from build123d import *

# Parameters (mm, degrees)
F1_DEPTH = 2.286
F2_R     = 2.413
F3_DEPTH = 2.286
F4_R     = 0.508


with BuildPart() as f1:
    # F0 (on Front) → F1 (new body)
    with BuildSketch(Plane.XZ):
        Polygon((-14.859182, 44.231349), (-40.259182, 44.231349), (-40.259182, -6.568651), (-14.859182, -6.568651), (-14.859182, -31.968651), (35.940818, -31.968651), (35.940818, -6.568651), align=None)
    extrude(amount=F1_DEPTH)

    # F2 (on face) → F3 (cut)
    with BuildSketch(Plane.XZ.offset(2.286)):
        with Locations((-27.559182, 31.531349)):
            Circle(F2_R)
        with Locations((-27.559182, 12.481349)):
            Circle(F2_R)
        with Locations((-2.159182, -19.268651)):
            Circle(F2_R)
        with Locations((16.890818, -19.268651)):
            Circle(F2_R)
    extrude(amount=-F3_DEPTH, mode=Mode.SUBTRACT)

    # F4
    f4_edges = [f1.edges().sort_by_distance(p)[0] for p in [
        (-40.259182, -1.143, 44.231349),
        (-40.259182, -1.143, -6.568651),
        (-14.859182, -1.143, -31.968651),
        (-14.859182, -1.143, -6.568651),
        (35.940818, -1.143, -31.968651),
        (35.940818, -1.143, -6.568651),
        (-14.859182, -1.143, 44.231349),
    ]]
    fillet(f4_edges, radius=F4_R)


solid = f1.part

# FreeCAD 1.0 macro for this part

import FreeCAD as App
import Part
import Sketcher
Q = App.Units.Quantity


def edges_at(feature, points):
    """Names of the edges that pass closest to the given points."""
    edges = feature.Shape.Edges
    near = lambda p: min(range(len(edges)), key=lambda i: edges[i].distToShape(Part.Vertex(*p))[0])
    return sorted({f"Edge{near(p) + 1}" for p in points})


def add_polygon(sketch, points):
    """Adds a closed chain of lines whose ends are joined by coincident constraints."""
    first, n = sketch.GeometryCount, len(points)
    for a, b in zip(points, points[1:] + points[:1]):
        sketch.addGeometry(Part.LineSegment(App.Vector(*a, 0), App.Vector(*b, 0)), False)
    for i in range(n):
        sketch.addConstraint(Sketcher.Constraint("Coincident", first + i, 2, first + (i + 1) % n, 1))

doc = App.newDocument("Part")
params = doc.addObject("Spreadsheet::Sheet", "Params")
for row, (alias, value) in enumerate([
    ("sketch1_width", "1 in"),
    ("sketch1_width2", "2 in"),
    ("pad1_length", "0.09 in"),
    ("sketch2_diameter", "0.19 in"),
    ("pocket1_length", "0.09 in"),
    ("fillet_radius", "0.02 in"),
], start=1):
    params.set(f"A{row}", alias)
    params.set(f"B{row}", "=" + value)
    params.setAlias(f"B{row}", alias)

body = doc.addObject("PartDesign::Body", "Body")

# Sketch on XZ plane
sketch1 = body.newObject("Sketcher::SketchObject", "Sketch")
sketch1.AttachmentSupport = (doc.getObject("XZ_Plane"), [""])
sketch1.MapMode = "FlatFace"
add_polygon(sketch1, [(-15, 44), (-40, 44), (-40, -7), (-15, -7), (-15, -32), (36, -32), (36, -7)])  # lines 0-6
sketch1.addConstraint(Sketcher.Constraint("Horizontal", 0))
sketch1.addConstraint(Sketcher.Constraint("Vertical", 1))
sketch1.addConstraint(Sketcher.Constraint("Horizontal", 2))
sketch1.addConstraint(Sketcher.Constraint("Vertical", 3))
sketch1.addConstraint(Sketcher.Constraint("Horizontal", 4))
sketch1.addConstraint(Sketcher.Constraint("Vertical", 5))
sketch1.addConstraint(Sketcher.Constraint("Horizontal", 2, 2, 5, 2))
sketch1.addConstraint(Sketcher.Constraint("Vertical", 3, 2, 6, 2))
sketch1.addConstraint(Sketcher.Constraint("Equal", 4, 1))
sketch1.addConstraint(Sketcher.Constraint("Equal", 2, 3))
sketch1.addConstraint(Sketcher.Constraint("DistanceX", 0, 2, 0, 1, Q("1 in")))
sketch1.addConstraint(Sketcher.Constraint("DistanceX", 4, 1, 4, 2, Q("2 in")))
sketch1.addConstraint(Sketcher.Constraint("DistanceY", -1, 1, 0, 2, 44.231349))
sketch1.addConstraint(Sketcher.Constraint("DistanceX", 0, 2, -1, 1, 40.259182))
sketch1.setExpression("Constraints[17]", "Params.sketch1_width")
sketch1.setExpression("Constraints[18]", "Params.sketch1_width2")
pad1 = body.newObject("PartDesign::Pad", "Pad")
pad1.Profile = sketch1
pad1.setExpression("Length", "Params.pad1_length")

# Sketch on XZ plane
sketch2 = body.newObject("Sketcher::SketchObject", "Sketch001")
sketch2.AttachmentSupport = (doc.getObject("XZ_Plane"), [""])
sketch2.MapMode = "FlatFace"
sketch2.AttachmentOffset = App.Placement(App.Vector(0, 0, 0.09 * 25.4), App.Rotation())
sketch2.addGeometry(Part.Circle(App.Vector(-27.6, 31.5, 0), App.Vector(0, 0, 1), 2.4), False)
sketch2.addGeometry(Part.Circle(App.Vector(-27.6, 12.5, 0), App.Vector(0, 0, 1), 2.4), False)
sketch2.addGeometry(Part.Circle(App.Vector(-2.2, -19.3, 0), App.Vector(0, 0, 1), 2.4), False)
sketch2.addGeometry(Part.Circle(App.Vector(16.9, -19.3, 0), App.Vector(0, 0, 1), 2.4), False)
sketch2.addConstraint(Sketcher.Constraint("Equal", 0, 1))
sketch2.addConstraint(Sketcher.Constraint("Equal", 1, 2))
sketch2.addConstraint(Sketcher.Constraint("Equal", 2, 3))
sketch2.addConstraint(Sketcher.Constraint("Horizontal", 2, 3, 3, 3))
sketch2.addConstraint(Sketcher.Constraint("Vertical", 0, 3, 1, 3))
sketch2.addConstraint(Sketcher.Constraint("Diameter", 0, Q("0.19 in")))
sketch2.addConstraint(Sketcher.Constraint("DistanceX", 1, 3, 2, 3, Q("1 in")))
sketch2.addConstraint(Sketcher.Constraint("DistanceY", 2, 3, 0, 3, Q("2 in")))
sketch2.addConstraint(Sketcher.Constraint("DistanceY", 1, 3, 0, 3, Q("0.75 in")))
sketch2.addConstraint(Sketcher.Constraint("DistanceX", 2, 3, 3, 3, Q("0.75 in")))
sketch2.addConstraint(Sketcher.Constraint("DistanceX", 0, 3, -1, 1, 27.559182))
sketch2.addConstraint(Sketcher.Constraint("DistanceY", -1, 1, 0, 3, 31.531349))
sketch2.setExpression("Constraints[5]", "Params.sketch2_diameter")
pocket1 = body.newObject("PartDesign::Pocket", "Pocket")
pocket1.Profile = sketch2
pocket1.setExpression("Length", "Params.pocket1_length")
doc.recompute()

fillet = body.newObject("PartDesign::Fillet", "Fillet")
fillet.Base = (pocket1, edges_at(pocket1, [
    (-40.259, -1.143, 44.231),
    (-40.259, -1.143, -6.569),
    (-14.859, -1.143, -31.969),
    (-14.859, -1.143, -6.569),
    (35.941, -1.143, -31.969),
    (35.941, -1.143, -6.569),
    (-14.859, -1.143, 44.231),
]))
fillet.setExpression("Radius", "Params.fillet_radius")

doc.recompute()
